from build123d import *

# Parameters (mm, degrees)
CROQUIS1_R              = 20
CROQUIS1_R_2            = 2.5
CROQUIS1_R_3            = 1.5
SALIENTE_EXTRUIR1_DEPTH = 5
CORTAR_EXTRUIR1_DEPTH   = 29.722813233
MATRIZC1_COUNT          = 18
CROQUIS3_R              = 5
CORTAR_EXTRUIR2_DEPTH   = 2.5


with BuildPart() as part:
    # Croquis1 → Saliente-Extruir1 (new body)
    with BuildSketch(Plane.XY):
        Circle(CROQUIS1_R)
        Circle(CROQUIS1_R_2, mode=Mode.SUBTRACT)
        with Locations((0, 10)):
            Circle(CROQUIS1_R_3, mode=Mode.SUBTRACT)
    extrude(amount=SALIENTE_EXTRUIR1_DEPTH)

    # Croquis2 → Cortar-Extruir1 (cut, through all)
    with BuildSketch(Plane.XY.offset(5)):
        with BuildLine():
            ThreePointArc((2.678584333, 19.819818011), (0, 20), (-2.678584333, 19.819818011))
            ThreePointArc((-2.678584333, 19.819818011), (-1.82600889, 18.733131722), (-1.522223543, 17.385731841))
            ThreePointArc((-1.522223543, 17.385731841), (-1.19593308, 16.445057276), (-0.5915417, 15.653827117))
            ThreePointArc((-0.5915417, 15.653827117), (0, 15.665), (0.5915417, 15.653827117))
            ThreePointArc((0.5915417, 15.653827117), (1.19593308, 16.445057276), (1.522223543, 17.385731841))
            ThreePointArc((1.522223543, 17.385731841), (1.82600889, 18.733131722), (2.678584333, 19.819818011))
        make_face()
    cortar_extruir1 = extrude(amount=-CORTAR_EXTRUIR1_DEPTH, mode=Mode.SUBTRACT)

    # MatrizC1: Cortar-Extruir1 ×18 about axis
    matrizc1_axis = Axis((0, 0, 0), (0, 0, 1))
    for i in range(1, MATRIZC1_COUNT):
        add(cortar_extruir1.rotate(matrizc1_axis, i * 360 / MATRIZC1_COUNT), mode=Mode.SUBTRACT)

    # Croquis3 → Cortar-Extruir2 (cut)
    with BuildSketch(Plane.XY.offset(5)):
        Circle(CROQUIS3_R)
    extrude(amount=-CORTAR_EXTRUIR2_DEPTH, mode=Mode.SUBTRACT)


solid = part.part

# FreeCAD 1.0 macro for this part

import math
import FreeCAD as App
import Part
import Sketcher

V = App.Vector

doc = App.newDocument("Part")
body = doc.addObject("PartDesign::Body", "Body")

# Sketch on XY plane
sketch1 = doc.addObject("Sketcher::SketchObject", "Sketch")
body.addObject(sketch1)
sketch1.AttachmentSupport = (doc.XY_Plane, [""])
sketch1.MapMode = "FlatFace"
sketch1.addGeometry([
    Part.Circle(V(0, 0, 0), V(0, 0, 1), 20),
    Part.Circle(V(0, 0, 0), V(0, 0, 1), 2.5),
    Part.Circle(V(0, 10, 0), V(0, 0, 1), 1.5),
], False)
sketch1.addConstraint([
    Sketcher.Constraint("Coincident", 0, 3, -1, 1),
    Sketcher.Constraint("Coincident", 1, 3, -1, 1),
    Sketcher.Constraint("PointOnObject", 2, 3, -2),
    Sketcher.Constraint("Diameter", 0, 40.0),
    Sketcher.Constraint("Diameter", 1, 5.0),
    Sketcher.Constraint("Diameter", 2, 3.0),
    Sketcher.Constraint("DistanceY", -1, 1, 2, 3, 10.0),
])
pad1 = doc.addObject("PartDesign::Pad", "Pad")
body.addObject(pad1)
pad1.Profile = sketch1
pad1.Length = 5

# Sketch on XY plane
sketch2 = doc.addObject("Sketcher::SketchObject", "Sketch001")
body.addObject(sketch2)
sketch2.AttachmentSupport = (doc.XY_Plane, [""])
sketch2.MapMode = "FlatFace"
sketch2.AttachmentOffset = App.Placement(V(0, 0, 5), App.Rotation())
sketch2.addGeometry([
    Part.ArcOfCircle(Part.Circle(V(0, 0, 0), V(0, 0, 1), 20), math.radians(82.3), math.radians(97.7)),  # 0
    Part.ArcOfCircle(Part.Circle(V(-4.7, 17.4, 0), V(0, 0, 1), 3.1), math.radians(0), math.radians(51)),  # 1
    Part.ArcOfCircle(Part.Circle(V(1.6, 17.9, 0), V(0, 0, 1), 3.1), math.radians(-170), math.radians(-134)),  # 2
    Part.ArcOfCircle(Part.Circle(V(0, 0, 0), V(0, 0, 1), 15.7), math.radians(87.84), math.radians(92.16)),  # 3
    Part.ArcOfCircle(Part.Circle(V(-1.6, 17.9, 0), V(0, 0, 1), 3.1), math.radians(-46), math.radians(-10)),  # 4
    Part.ArcOfCircle(Part.Circle(V(4.7, 17.4, 0), V(0, 0, 1), 3.1), math.radians(129), math.radians(180)),  # 5
], False)
sketch2.addConstraint([
    Sketcher.Constraint("Coincident", 0, 2, 1, 2),
    Sketcher.Constraint("Coincident", 1, 1, 2, 1),
    Sketcher.Constraint("Coincident", 2, 2, 3, 2),
    Sketcher.Constraint("Coincident", 3, 1, 4, 1),
    Sketcher.Constraint("Coincident", 4, 2, 5, 2),
    Sketcher.Constraint("Coincident", 5, 1, 0, 1),
    Sketcher.Constraint("Coincident", 0, 3, -1, 1),
    Sketcher.Constraint("Coincident", 3, 3, -1, 1),
    Sketcher.Constraint("Equal", 1, 2),
    Sketcher.Constraint("Equal", 2, 4),
    Sketcher.Constraint("Equal", 4, 5),
    Sketcher.Constraint("Symmetric", 2, 3, 4, 3, -2),
    Sketcher.Constraint("Symmetric", 1, 3, 5, 3, -2),
    Sketcher.Constraint("Horizontal", 5, 3, 1, 1),
    Sketcher.Constraint("Radius", 0, 20.0),
    Sketcher.Constraint("Radius", 1, 3.14),
    Sketcher.Constraint("Radius", 3, 15.665),
    Sketcher.Constraint("DistanceX", -1, 1, 2, 3, 1.57),
    Sketcher.Constraint("DistanceY", -1, 1, 2, 3, 17.9314),
    Sketcher.Constraint("DistanceY", -1, 1, 1, 3, 17.385732),
])
pocket1 = doc.addObject("PartDesign::Pocket", "Pocket")
body.addObject(pocket1)
pocket1.Profile = sketch2
pocket1.Type = "ThroughAll"
doc.recompute()

polarpattern = doc.addObject("PartDesign::PolarPattern", "PolarPattern")
body.addObject(polarpattern)
polarpattern.Originals = [pocket1]
polarpattern.Axis = (doc.Z_Axis, [""])
polarpattern.Angle = 360
polarpattern.Occurrences = 18
body.Tip = polarpattern

# Sketch on XY plane
sketch3 = doc.addObject("Sketcher::SketchObject", "Sketch002")
body.addObject(sketch3)
sketch3.AttachmentSupport = (doc.XY_Plane, [""])
sketch3.MapMode = "FlatFace"
sketch3.AttachmentOffset = App.Placement(V(0, 0, 5), App.Rotation())
sketch3.addGeometry(Part.Circle(V(0, 0, 0), V(0, 0, 1), 5), False)
sketch3.addConstraint([
    Sketcher.Constraint("Coincident", 0, 3, -1, 1),
    Sketcher.Constraint("Diameter", 0, 10.0),
])
pocket2 = doc.addObject("PartDesign::Pocket", "Pocket001")
body.addObject(pocket2)
pocket2.Profile = sketch3
pocket2.Length = 2.5

doc.recompute()
